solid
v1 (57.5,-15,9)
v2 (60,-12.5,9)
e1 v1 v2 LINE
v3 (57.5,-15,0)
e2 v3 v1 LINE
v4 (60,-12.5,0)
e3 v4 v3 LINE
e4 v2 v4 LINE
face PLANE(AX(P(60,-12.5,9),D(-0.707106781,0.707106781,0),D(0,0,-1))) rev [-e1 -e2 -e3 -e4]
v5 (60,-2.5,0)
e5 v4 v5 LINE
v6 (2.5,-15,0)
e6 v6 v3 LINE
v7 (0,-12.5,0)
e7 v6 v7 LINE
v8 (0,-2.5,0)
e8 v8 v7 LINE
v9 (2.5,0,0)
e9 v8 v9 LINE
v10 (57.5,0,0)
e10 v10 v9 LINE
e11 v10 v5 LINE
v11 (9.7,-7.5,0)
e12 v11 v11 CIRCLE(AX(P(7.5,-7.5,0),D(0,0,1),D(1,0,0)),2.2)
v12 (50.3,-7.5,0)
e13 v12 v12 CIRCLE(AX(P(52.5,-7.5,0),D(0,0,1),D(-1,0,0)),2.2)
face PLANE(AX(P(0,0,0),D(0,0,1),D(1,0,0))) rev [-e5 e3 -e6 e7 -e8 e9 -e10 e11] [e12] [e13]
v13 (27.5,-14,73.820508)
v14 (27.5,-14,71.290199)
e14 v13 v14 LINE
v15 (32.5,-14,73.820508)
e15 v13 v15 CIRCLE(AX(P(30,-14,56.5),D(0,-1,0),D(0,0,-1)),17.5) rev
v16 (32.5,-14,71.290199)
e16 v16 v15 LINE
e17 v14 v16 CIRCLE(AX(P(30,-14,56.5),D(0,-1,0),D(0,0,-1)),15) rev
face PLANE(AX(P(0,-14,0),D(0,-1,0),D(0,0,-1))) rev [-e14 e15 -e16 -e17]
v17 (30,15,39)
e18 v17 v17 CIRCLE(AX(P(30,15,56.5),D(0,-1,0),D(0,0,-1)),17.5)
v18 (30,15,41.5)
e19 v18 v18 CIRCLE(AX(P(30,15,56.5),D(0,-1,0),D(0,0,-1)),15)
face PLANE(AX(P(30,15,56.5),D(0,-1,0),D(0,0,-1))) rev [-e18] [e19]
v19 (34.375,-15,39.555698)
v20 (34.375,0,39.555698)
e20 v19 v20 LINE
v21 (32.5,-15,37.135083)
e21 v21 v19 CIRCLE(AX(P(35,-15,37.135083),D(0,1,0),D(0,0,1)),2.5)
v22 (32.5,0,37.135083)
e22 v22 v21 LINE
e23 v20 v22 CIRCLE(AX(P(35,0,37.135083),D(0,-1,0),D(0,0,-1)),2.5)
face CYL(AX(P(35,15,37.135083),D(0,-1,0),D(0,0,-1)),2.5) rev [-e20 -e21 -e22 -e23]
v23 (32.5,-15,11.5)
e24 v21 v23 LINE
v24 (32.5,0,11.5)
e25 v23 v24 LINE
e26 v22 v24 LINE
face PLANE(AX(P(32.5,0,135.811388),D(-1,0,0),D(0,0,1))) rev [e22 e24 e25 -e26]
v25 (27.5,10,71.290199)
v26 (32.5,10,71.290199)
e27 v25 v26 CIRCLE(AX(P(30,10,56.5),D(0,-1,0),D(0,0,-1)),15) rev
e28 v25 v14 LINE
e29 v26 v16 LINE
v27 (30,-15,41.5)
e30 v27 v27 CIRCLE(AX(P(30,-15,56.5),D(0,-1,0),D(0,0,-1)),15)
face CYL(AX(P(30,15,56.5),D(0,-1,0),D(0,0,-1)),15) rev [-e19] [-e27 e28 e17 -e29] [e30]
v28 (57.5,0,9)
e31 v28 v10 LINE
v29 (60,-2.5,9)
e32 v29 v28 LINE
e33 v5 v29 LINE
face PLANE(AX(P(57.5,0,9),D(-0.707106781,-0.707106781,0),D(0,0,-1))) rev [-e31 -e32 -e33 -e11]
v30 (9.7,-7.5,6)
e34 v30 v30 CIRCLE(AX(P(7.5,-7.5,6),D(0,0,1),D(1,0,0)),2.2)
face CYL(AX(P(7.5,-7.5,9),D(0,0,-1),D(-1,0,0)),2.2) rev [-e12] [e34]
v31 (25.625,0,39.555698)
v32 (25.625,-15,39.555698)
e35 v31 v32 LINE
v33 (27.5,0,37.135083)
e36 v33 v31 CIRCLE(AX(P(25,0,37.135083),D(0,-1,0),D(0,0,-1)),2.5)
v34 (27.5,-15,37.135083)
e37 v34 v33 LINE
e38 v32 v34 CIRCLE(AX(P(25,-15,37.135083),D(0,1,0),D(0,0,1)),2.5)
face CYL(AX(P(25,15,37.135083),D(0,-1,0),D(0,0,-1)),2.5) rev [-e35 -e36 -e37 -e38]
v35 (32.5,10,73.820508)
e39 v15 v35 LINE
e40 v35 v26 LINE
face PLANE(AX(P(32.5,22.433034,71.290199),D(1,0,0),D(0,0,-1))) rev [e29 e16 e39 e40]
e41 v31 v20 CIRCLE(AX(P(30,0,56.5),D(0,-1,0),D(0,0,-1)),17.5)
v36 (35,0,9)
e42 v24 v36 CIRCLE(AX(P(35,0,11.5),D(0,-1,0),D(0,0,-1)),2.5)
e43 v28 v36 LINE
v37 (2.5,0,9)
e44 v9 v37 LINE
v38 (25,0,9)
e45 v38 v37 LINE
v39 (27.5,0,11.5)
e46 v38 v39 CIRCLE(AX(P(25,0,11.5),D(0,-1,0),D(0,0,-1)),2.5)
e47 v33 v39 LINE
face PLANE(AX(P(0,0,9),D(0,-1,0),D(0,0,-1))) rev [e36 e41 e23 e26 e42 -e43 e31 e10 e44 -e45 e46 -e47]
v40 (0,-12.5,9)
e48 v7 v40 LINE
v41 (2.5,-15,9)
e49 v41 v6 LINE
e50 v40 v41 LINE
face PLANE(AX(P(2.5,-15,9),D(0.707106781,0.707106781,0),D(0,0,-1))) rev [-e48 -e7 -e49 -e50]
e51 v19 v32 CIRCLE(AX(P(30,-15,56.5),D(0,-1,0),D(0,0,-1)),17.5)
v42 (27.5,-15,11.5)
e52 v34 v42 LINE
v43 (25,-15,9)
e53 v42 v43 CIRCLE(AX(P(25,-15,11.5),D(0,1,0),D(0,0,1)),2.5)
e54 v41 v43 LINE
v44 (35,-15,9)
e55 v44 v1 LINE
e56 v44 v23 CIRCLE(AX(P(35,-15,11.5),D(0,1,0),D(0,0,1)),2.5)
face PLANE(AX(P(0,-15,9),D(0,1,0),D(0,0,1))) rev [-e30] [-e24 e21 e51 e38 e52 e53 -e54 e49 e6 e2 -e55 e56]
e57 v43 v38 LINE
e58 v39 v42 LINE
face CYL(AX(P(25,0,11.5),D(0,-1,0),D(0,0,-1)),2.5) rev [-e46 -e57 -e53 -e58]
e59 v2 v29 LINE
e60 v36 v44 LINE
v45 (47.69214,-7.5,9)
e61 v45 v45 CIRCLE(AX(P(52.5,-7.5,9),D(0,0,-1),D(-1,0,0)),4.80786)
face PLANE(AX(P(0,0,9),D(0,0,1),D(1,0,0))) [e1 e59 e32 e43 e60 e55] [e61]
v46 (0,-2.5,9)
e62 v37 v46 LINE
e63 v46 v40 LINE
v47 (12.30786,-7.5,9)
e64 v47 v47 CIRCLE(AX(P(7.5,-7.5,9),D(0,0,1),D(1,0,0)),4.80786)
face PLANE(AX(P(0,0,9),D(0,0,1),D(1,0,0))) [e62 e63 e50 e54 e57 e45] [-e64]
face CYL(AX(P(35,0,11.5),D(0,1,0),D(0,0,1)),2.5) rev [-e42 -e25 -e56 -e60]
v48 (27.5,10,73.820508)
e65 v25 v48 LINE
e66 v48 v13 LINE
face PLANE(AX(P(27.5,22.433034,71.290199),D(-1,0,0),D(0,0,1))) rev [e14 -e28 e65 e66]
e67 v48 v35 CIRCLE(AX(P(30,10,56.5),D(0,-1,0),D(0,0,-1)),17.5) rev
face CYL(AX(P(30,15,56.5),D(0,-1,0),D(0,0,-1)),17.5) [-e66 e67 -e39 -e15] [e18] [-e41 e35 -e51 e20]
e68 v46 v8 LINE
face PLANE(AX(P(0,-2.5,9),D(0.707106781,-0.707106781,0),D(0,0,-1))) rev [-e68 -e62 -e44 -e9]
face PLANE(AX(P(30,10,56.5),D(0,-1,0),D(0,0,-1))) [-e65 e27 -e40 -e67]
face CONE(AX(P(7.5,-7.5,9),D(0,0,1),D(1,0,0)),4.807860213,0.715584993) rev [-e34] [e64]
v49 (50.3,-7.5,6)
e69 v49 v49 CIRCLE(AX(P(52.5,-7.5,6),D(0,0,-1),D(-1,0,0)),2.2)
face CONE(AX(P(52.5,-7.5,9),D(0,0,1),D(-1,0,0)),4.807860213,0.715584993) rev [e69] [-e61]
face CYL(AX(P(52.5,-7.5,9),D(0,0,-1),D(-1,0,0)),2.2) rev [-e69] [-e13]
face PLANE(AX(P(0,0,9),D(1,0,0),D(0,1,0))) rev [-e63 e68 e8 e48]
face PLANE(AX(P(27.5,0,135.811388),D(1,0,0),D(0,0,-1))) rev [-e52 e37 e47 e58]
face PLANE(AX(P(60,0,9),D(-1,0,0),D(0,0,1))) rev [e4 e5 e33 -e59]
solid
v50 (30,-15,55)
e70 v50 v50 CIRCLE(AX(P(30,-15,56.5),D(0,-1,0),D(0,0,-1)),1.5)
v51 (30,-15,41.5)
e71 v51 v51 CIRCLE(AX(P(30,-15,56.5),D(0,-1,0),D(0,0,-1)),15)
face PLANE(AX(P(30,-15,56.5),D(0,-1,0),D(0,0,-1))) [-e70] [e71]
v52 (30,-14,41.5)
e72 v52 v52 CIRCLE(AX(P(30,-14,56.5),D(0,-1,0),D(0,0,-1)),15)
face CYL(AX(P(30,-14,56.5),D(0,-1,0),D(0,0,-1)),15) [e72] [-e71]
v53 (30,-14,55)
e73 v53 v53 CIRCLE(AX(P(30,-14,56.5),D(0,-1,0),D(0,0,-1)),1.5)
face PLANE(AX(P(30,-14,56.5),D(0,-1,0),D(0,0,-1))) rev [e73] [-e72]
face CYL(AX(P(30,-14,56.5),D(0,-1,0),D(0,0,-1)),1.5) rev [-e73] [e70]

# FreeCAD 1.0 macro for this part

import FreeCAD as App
import Part
import Sketcher
Q = App.Units.Quantity


def edges_at(feature, points):
    """Names of the edges that pass closest to the given points."""
    edges = feature.Shape.Edges
    near = lambda p: min(range(len(edges)), key=lambda i: edges[i].distToShape(Part.Vertex(*p))[0])
    return sorted({f"Edge{near(p) + 1}" for p in points})


def add_polygon(sketch, points):
    """Adds a closed chain of lines whose ends are joined by coincident constraints."""
    first, n = sketch.GeometryCount, len(points)
    for a, b in zip(points, points[1:] + points[:1]):
        sketch.addGeometry(Part.LineSegment(App.Vector(*a, 0), App.Vector(*b, 0)), False)
    for i in range(n):
        sketch.addConstraint(Sketcher.Constraint("Coincident", first + i, 2, first + (i + 1) % n, 1))

doc = App.newDocument("Part")
body = doc.addObject("PartDesign::Body", "Body")

# Sketch on XY plane
sketch1 = body.newObject("Sketcher::SketchObject", "Sketch")
sketch1.AttachmentSupport = (doc.getObject("XY_Plane"), [""])
sketch1.MapMode = "FlatFace"
add_polygon(sketch1, [(0, 0), (0, -15), (60, -15), (60, 0)])  # lines 0-3
sketch1.addGeometry(Part.Circle(App.Vector(7.5, -7.5, 0), App.Vector(0, 0, 1), 2.2), False)  # 4
sketch1.addGeometry(Part.Circle(App.Vector(52.5, -7.5, 0), App.Vector(0, 0, 1), 2.2), False)  # 5
sketch1.addConstraint([
    Sketcher.Constraint("Vertical", 0),
    Sketcher.Constraint("Horizontal", 1),
    Sketcher.Constraint("Vertical", 2),
    Sketcher.Constraint("Horizontal", 3),
    Sketcher.Constraint("Coincident", 3, 2, -1, 1),
    Sketcher.Constraint("Equal", 4, 5),
    Sketcher.Constraint("Horizontal", 4, 3, 5, 3),
    Sketcher.Constraint("Diameter", 4, 4.4),
    Sketcher.Constraint("DistanceX", 1, 1, 1, 2, 60.0),
    Sketcher.Constraint("DistanceY", 0, 2, 0, 1, 15.0),
    Sketcher.Constraint("DistanceX", 4, 3, 5, 3, 45.0),
    Sketcher.Constraint("DistanceX", -1, 1, 4, 3, 7.5),
    Sketcher.Constraint("DistanceY", 4, 3, -1, 1, 7.5),
])
pad1 = body.newObject("PartDesign::Pad", "Pad")
pad1.Profile = sketch1
pad1.Length = 9

# Sketch on YZ plane
sketch2 = body.newObject("Sketcher::SketchObject", "Sketch001")
sketch2.AttachmentSupport = (doc.getObject("YZ_Plane"), [""])
sketch2.MapMode = "FlatFace"
sketch2.AttachmentOffset = App.Placement(App.Vector(0, 0, 7.5), App.Rotation())
add_polygon(sketch2, [(-7.5, 6), (-7.5, 9), (-12.30786, 9), (-9.7, 6)])  # lines 0-3
sketch2.addGeometry(Part.LineSegment(App.Vector(-7.5, 9, 0), App.Vector(-7.5, 6, 0)), True)  # axis
sketch2.addConstraint([
    Sketcher.Constraint("Vertical", 0),
    Sketcher.Constraint("Horizontal", 1),
    Sketcher.Constraint("Horizontal", 3),
    Sketcher.Constraint("Vertical", 4),
    Sketcher.Constraint("Coincident", 4, 1, 0, 2),
    Sketcher.Constraint("Horizontal", 2, 2, 4, 2),
    Sketcher.Constraint("DistanceY", 0, 1, 0, 2, 3.0),
    Sketcher.Constraint("Angle", 2, Q("-49 deg")),
    Sketcher.Constraint("DistanceX", 3, 1, 3, 2, 2.2),
    Sketcher.Constraint("DistanceY", -1, 1, 0, 2, 9.0),
    Sketcher.Constraint("DistanceX", 0, 2, -1, 1, 7.5),
])
groove = body.newObject("PartDesign::Groove", "Groove")
groove.Profile = sketch2
groove.ReferenceAxis = (sketch2, ["Axis0"])
groove.Angle = 360
doc.recompute()

datumplane = body.newObject("PartDesign::Plane", "DatumPlane")
datumplane.AttachmentSupport = (doc.getObject("YZ_Plane"), [""])
datumplane.MapMode = "FlatFace"
datumplane.AttachmentOffset = App.Placement(App.Vector(0, 0, 30), App.Rotation())
mirrored = body.newObject("PartDesign::Mirrored", "Mirrored")
mirrored.Originals = [groove]
mirrored.MirrorPlane = (datumplane, [""])
body.Tip = mirrored

# Sketch on XY plane
sketch3 = body.newObject("Sketcher::SketchObject", "Sketch002")
sketch3.AttachmentSupport = (doc.getObject("XY_Plane"), [""])
sketch3.MapMode = "FlatFace"
sketch3.AttachmentOffset = App.Placement(App.Vector(0, 0, 9), App.Rotation())
add_polygon(sketch3, [(27.5, 0), (27.5, -15), (32.5, -15), (32.5, 0)])  # lines 0-3
sketch3.addConstraint([
    Sketcher.Constraint("Vertical", 0),
    Sketcher.Constraint("Horizontal", 1),
    Sketcher.Constraint("Vertical", 2),
    Sketcher.Constraint("Horizontal", 3),
    Sketcher.Constraint("PointOnObject", 2, 2, -1),
    Sketcher.Constraint("DistanceX", 1, 1, 1, 2, 5.0),
    Sketcher.Constraint("DistanceY", 0, 2, 0, 1, 15.0),
    Sketcher.Constraint("DistanceX", -1, 1, 0, 2, 27.5),
])
pad2 = body.newObject("PartDesign::Pad", "Pad001")
pad2.Profile = sketch3
pad2.Length = 51

# Sketch on XZ plane
sketch4 = body.newObject("Sketcher::SketchObject", "Sketch003")
sketch4.AttachmentSupport = (doc.getObject("XZ_Plane"), [""])
sketch4.MapMode = "FlatFace"
sketch4.AttachmentOffset = App.Placement(App.Vector(0, 0, 15), App.Rotation())
sketch4.addGeometry(Part.Circle(App.Vector(30, 56.5, 0), App.Vector(0, 0, 1), 17.5), False)
sketch4.addConstraint([
    Sketcher.Constraint("Diameter", 0, 35.0),
    Sketcher.Constraint("DistanceX", -1, 1, 0, 3, 30.0),
    Sketcher.Constraint("DistanceY", -1, 1, 0, 3, 56.5),
])
pad3 = body.newObject("PartDesign::Pad", "Pad002")
pad3.Profile = sketch4
pad3.Length = 30
pad3.Reversed = True

# Sketch on XZ plane
sketch5 = body.newObject("Sketcher::SketchObject", "Sketch004")
sketch5.AttachmentSupport = (doc.getObject("XZ_Plane"), [""])
sketch5.MapMode = "FlatFace"
sketch5.AttachmentOffset = App.Placement(App.Vector(0, 0, 15), App.Rotation())
sketch5.addGeometry(Part.Circle(App.Vector(30, 56.5, 0), App.Vector(0, 0, 1), 15), False)
sketch5.addConstraint([
    Sketcher.Constraint("Diameter", 0, 30.0),
    Sketcher.Constraint("DistanceX", -1, 1, 0, 3, 30.0),
    Sketcher.Constraint("DistanceY", -1, 1, 0, 3, 56.5),
])
pocket1 = body.newObject("PartDesign::Pocket", "Pocket")
pocket1.Profile = sketch5
pocket1.Type = "ThroughAll"
doc.recompute()

fillet = body.newObject("PartDesign::Fillet", "Fillet")
fillet.Base = (pocket1, edges_at(pocket1, [
    (32.5, -7.5, 9),
    (27.5, -7.5, 9),
    (27.5, -7.5, 39.179),
    (32.5, -7.5, 39.179),
]))
fillet.Radius = 2.5
doc.recompute()

chamfer = body.newObject("PartDesign::Chamfer", "Chamfer")
chamfer.Base = (fillet, edges_at(fillet, [
    (0, 0, 4.5),
    (60, 0, 4.5),
    (60, -15, 4.5),
    (0, -15, 4.5),
]))
chamfer.Size = 2.5

# Sketch on XZ plane
sketch6 = body.newObject("Sketcher::SketchObject", "Sketch005")
sketch6.AttachmentSupport = (doc.getObject("XZ_Plane"), [""])
sketch6.MapMode = "FlatFace"
sketch6.AttachmentOffset = App.Placement(App.Vector(0, 0, 14), App.Rotation())
add_polygon(sketch6, [(27.5, 76.790199), (27.5, 71.290199), (32.5, 71.290199), (32.5, 76.790199)])  # lines 0-3
sketch6.addConstraint([
    Sketcher.Constraint("Vertical", 0),
    Sketcher.Constraint("Horizontal", 1),
    Sketcher.Constraint("Vertical", 2),
    Sketcher.Constraint("Horizontal", 3),
    Sketcher.Constraint("DistanceX", 1, 1, 1, 2, 5.0),
    Sketcher.Constraint("DistanceY", 0, 2, 0, 1, 5.5),
    Sketcher.Constraint("DistanceX", -1, 1, 0, 2, 27.5),
    Sketcher.Constraint("DistanceY", -1, 1, 0, 2, 71.290199),
])
pocket2 = body.newObject("PartDesign::Pocket", "Pocket001")
pocket2.Profile = sketch6
pocket2.Length = 24
body2 = doc.addObject("PartDesign::Body", "Body001")

# Sketch on XZ plane
sketch7 = body2.newObject("Sketcher::SketchObject", "Sketch006")
sketch7.AttachmentSupport = (doc.getObject("XZ_Plane001"), [""])
sketch7.MapMode = "FlatFace"
sketch7.AttachmentOffset = App.Placement(App.Vector(0, 0, 15), App.Rotation())
sketch7.addGeometry([
    Part.Circle(App.Vector(30, 56.5, 0), App.Vector(0, 0, 1), 15),
    Part.Circle(App.Vector(30, 56.5, 0), App.Vector(0, 0, 1), 1.5),
], False)
sketch7.addConstraint([
    Sketcher.Constraint("Coincident", 1, 3, 0, 3),
    Sketcher.Constraint("Diameter", 0, 30.0),
    Sketcher.Constraint("Diameter", 1, 3.0),
    Sketcher.Constraint("DistanceX", -1, 1, 0, 3, 30.0),
    Sketcher.Constraint("DistanceY", -1, 1, 0, 3, 56.5),
])
pad4 = body2.newObject("PartDesign::Pad", "Pad003")
pad4.Profile = sketch7
pad4.Length = 1
pad4.Reversed = True

doc.recompute()
